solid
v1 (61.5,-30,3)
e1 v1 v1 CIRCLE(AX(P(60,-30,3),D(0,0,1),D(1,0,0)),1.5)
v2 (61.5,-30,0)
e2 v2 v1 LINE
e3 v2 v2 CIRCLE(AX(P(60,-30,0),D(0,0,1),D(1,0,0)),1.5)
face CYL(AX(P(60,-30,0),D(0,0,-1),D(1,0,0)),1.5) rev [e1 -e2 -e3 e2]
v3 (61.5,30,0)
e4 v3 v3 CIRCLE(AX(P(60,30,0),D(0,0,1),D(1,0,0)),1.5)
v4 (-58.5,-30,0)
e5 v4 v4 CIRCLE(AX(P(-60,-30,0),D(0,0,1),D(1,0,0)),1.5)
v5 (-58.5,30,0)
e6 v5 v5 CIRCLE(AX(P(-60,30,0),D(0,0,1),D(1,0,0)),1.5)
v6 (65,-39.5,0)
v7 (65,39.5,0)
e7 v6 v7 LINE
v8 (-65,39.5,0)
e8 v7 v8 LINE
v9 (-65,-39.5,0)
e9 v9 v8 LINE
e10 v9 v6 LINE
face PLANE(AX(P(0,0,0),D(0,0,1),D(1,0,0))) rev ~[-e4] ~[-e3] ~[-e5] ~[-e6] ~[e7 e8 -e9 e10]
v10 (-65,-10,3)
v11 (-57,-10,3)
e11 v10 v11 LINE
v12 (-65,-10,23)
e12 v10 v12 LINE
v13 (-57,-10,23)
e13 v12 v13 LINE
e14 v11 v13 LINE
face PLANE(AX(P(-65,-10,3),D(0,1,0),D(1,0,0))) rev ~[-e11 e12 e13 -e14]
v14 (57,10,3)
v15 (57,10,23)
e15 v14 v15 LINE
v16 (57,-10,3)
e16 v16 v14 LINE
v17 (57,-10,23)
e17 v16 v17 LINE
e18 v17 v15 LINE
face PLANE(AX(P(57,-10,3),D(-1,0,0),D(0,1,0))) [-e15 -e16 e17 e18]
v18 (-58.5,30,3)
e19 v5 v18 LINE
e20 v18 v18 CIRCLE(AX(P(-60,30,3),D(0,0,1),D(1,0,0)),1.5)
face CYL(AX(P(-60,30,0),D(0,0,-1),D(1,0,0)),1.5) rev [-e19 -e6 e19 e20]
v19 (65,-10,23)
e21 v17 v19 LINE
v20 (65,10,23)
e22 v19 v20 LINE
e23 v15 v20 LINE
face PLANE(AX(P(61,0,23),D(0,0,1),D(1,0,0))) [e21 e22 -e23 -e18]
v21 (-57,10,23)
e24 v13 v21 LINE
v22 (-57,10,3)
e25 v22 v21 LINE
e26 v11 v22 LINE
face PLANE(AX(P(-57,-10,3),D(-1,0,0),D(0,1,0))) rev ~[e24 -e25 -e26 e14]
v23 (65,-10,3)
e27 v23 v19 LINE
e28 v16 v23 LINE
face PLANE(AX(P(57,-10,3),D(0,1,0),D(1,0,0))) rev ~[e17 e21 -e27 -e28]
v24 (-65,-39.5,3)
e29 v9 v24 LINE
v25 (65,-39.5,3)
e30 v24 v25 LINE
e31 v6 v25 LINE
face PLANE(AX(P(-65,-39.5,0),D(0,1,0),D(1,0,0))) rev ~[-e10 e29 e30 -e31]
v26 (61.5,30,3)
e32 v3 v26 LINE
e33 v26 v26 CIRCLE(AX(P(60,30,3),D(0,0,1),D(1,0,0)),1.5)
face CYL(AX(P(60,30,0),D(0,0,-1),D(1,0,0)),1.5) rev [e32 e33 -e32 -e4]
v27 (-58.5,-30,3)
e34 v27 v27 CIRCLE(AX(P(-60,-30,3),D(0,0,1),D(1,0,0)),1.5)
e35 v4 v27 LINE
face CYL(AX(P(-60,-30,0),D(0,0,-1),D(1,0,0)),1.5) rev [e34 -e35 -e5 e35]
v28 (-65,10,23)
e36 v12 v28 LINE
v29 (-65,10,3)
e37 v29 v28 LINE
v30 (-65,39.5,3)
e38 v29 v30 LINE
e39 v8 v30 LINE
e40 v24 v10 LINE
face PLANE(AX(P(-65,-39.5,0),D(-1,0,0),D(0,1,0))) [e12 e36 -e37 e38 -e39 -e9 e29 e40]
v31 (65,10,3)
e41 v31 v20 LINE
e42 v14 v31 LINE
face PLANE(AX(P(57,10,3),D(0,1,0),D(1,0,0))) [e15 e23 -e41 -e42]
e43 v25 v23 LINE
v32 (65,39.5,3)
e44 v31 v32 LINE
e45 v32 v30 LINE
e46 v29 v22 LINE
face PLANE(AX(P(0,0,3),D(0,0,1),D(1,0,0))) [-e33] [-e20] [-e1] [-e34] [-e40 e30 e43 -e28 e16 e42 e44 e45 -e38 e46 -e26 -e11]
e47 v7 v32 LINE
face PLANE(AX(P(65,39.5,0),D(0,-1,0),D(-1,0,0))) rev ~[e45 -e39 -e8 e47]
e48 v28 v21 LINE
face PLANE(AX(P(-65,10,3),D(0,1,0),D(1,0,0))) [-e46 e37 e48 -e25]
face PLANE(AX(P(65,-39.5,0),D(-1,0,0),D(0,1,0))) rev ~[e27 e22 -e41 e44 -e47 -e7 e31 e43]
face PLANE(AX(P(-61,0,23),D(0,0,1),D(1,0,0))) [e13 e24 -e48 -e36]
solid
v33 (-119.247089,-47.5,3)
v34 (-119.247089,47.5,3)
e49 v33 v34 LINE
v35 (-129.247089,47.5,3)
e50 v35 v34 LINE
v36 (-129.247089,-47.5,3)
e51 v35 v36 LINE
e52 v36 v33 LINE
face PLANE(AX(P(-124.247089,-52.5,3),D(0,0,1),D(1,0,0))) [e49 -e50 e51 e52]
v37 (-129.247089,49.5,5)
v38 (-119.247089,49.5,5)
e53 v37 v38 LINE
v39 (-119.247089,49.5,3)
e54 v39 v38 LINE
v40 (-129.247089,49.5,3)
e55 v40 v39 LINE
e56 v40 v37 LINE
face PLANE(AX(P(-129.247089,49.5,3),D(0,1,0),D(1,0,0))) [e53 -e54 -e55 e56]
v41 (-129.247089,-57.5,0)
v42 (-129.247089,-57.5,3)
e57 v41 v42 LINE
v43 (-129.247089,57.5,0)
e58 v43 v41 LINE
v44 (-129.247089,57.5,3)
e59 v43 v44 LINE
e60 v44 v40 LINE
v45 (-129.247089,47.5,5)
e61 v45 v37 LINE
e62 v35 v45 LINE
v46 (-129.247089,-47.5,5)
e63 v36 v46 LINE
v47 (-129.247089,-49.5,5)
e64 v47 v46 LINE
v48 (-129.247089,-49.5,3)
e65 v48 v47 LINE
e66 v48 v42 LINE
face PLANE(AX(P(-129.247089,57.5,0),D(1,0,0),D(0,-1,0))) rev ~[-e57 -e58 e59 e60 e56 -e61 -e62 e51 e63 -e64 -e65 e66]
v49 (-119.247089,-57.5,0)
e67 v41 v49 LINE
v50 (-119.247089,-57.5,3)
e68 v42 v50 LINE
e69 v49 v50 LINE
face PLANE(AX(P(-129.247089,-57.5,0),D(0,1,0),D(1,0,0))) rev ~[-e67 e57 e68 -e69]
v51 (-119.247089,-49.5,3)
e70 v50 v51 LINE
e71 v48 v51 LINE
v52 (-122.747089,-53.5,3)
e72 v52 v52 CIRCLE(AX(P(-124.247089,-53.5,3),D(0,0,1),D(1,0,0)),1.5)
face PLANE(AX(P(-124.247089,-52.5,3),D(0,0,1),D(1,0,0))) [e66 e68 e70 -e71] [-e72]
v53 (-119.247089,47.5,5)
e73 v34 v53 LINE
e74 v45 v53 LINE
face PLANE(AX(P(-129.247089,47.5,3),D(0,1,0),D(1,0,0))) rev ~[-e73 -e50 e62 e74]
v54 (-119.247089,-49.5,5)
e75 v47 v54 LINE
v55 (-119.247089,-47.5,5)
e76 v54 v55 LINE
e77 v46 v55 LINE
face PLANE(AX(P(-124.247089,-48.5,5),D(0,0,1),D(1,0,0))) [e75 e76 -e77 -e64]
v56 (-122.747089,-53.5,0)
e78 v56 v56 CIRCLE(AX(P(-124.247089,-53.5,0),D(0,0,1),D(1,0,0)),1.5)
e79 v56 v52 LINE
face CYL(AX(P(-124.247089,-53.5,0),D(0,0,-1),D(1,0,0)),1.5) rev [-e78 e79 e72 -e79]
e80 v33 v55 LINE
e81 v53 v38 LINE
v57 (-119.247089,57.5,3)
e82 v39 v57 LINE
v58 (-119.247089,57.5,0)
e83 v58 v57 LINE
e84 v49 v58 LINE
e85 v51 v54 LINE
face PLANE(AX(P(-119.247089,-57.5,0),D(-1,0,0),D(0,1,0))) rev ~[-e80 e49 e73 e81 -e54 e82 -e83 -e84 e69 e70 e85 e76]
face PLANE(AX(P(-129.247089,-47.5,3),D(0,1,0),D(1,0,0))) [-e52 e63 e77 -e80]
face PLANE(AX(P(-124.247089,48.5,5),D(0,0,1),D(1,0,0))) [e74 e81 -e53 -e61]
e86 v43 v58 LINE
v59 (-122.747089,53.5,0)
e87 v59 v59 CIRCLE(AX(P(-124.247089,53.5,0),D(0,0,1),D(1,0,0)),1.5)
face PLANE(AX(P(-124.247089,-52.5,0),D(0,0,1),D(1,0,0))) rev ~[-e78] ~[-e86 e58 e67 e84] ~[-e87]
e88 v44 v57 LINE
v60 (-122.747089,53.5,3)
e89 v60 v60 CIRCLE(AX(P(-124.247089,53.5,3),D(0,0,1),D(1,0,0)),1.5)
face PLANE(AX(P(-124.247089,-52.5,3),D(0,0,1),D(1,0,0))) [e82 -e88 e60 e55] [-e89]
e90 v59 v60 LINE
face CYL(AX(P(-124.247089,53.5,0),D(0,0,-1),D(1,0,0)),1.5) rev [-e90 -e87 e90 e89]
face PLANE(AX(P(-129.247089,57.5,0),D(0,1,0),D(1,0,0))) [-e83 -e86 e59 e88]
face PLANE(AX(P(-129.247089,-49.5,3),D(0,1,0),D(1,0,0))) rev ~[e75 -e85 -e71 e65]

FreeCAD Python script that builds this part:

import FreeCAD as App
import Part
import Sketcher


def add_polygon(sketch, points):
    """Adds a closed chain of lines whose ends are joined by coincident constraints."""
    first, n = sketch.GeometryCount, len(points)
    for a, b in zip(points, points[1:] + points[:1]):
        sketch.addGeometry(Part.LineSegment(App.Vector(*a, 0), App.Vector(*b, 0)), False)
    for i in range(n):
        sketch.addConstraint(Sketcher.Constraint("Coincident", first + i, 2, first + (i + 1) % n, 1))

doc = App.newDocument("Part")
params = doc.addObject("Spreadsheet::Sheet", "Params")
for row, (alias, value) in enumerate([
    ("sketch1_diameter", "3 mm"),
    ("sketch1_width", "130 mm"),
    ("sketch1_height", "79 mm"),
    ("pad1_length", "3 mm"),
    ("sketch2_width", "8 mm"),
    ("sketch2_height", "20 mm"),
    ("pad2_length", "20 mm"),
    ("sketch3_diameter", "3 mm"),
    ("sketch3_width", "10 mm"),
    ("sketch3_height", "115 mm"),
    ("pad3_length", "3 mm"),
    ("sketch4_width", "10 mm"),
    ("sketch4_height", "2 mm"),
    ("pad4_length", "2 mm"),
], start=1):
    params.set(f"A{row}", alias)
    params.set(f"B{row}", "=" + value)
    params.setAlias(f"B{row}", alias)

body = doc.addObject("PartDesign::Body", "Body")

# Sketch on XY plane
sketch1 = body.newObject("Sketcher::SketchObject", "Sketch")
sketch1.AttachmentSupport = (doc.getObject("XY_Plane"), [""])
sketch1.MapMode = "FlatFace"
add_polygon(sketch1, [(65, -39.5), (65, 39.5), (-65, 39.5), (-65, -39.5)])  # lines 0-3
sketch1.addGeometry(Part.Circle(App.Vector(-60, -30, 0), App.Vector(0, 0, 1), 1.5), False)  # 4
sketch1.addGeometry(Part.Circle(App.Vector(60, -30, 0), App.Vector(0, 0, 1), 1.5), False)  # 5
sketch1.addGeometry(Part.Circle(App.Vector(-60, 30, 0), App.Vector(0, 0, 1), 1.5), False)  # 6
sketch1.addGeometry(Part.Circle(App.Vector(60, 30, 0), App.Vector(0, 0, 1), 1.5), False)  # 7
sketch1.addConstraint([
    Sketcher.Constraint("Vertical", 0),
    Sketcher.Constraint("Horizontal", 1),
    Sketcher.Constraint("Vertical", 2),
    Sketcher.Constraint("Horizontal", 3),
    Sketcher.Constraint("Equal", 4, 5),
    Sketcher.Constraint("Equal", 5, 6),
    Sketcher.Constraint("Equal", 6, 7),
    Sketcher.Constraint("Symmetric", 5, 3, 6, 3, -1, 1),
    Sketcher.Constraint("Symmetric", 4, 3, 7, 3, -1, 1),
    Sketcher.Constraint("Symmetric", 0, 2, 2, 2, -1, 1),
    Sketcher.Constraint("Symmetric", 4, 3, 5, 3, -2),
    Sketcher.Constraint("Diameter", 4, 3.0),
    Sketcher.Constraint("DistanceX", 1, 2, 1, 1, 130.0),
    Sketcher.Constraint("DistanceY", 0, 1, 0, 2, 79.0),
    Sketcher.Constraint("DistanceX", 4, 3, -1, 1, 60.0),
    Sketcher.Constraint("DistanceY", 4, 3, -1, 1, 30.0),
])
sketch1.setExpression("Constraints[15]", "Params.sketch1_diameter")
sketch1.setExpression("Constraints[16]", "Params.sketch1_width")
sketch1.setExpression("Constraints[17]", "Params.sketch1_height")
pad1 = body.newObject("PartDesign::Pad", "Pad")
pad1.Profile = sketch1
pad1.setExpression("Length", "Params.pad1_length")

# Sketch on XY plane
sketch2 = body.newObject("Sketcher::SketchObject", "Sketch001")
sketch2.AttachmentSupport = (doc.getObject("XY_Plane"), [""])
sketch2.MapMode = "FlatFace"
sketch2.AttachmentOffset = App.Placement(App.Vector(0, 0, 3), App.Rotation())
add_polygon(sketch2, [(-65, 10), (-65, -10), (-57, -10), (-57, 10)])  # lines 0-3
add_polygon(sketch2, [(57, 10), (57, -10), (65, -10), (65, 10)])  # lines 4-7
sketch2.addConstraint([
    Sketcher.Constraint("Vertical", 0),
    Sketcher.Constraint("Horizontal", 1),
    Sketcher.Constraint("Vertical", 2),
    Sketcher.Constraint("Horizontal", 3),
    Sketcher.Constraint("Vertical", 4),
    Sketcher.Constraint("Horizontal", 5),
    Sketcher.Constraint("Vertical", 6),
    Sketcher.Constraint("Horizontal", 7),
    Sketcher.Constraint("Symmetric", 2, 2, 4, 2, -1, 1),
    Sketcher.Constraint("Symmetric", 0, 2, 6, 2, -1, 1),
    Sketcher.Constraint("Horizontal", 1, 2, 4, 2),
    Sketcher.Constraint("DistanceX", 1, 1, 1, 2, 8.0),
    Sketcher.Constraint("DistanceY", 0, 2, 0, 1, 20.0),
    Sketcher.Constraint("DistanceX", 0, 2, -1, 1, 65.0),
])
sketch2.setExpression("Constraints[19]", "Params.sketch2_width")
sketch2.setExpression("Constraints[20]", "Params.sketch2_height")
pad2 = body.newObject("PartDesign::Pad", "Pad001")
pad2.Profile = sketch2
pad2.setExpression("Length", "Params.pad2_length")
body2 = doc.addObject("PartDesign::Body", "Body001")

# Sketch on XY plane
sketch3 = body2.newObject("Sketcher::SketchObject", "Sketch002")
sketch3.AttachmentSupport = (doc.getObject("XY_Plane001"), [""])
sketch3.MapMode = "FlatFace"
add_polygon(sketch3, [(-129.2, -57.5), (-119.2, -57.5), (-119.2, 57.5), (-129.2, 57.5)])  # lines 0-3
sketch3.addGeometry(Part.Circle(App.Vector(-124.2, -53.5, 0), App.Vector(0, 0, 1), 1.5), False)  # 4
sketch3.addGeometry(Part.Circle(App.Vector(-124.2, 53.5, 0), App.Vector(0, 0, 1), 1.5), False)  # 5
sketch3.addConstraint([
    Sketcher.Constraint("Horizontal", 0),
    Sketcher.Constraint("Vertical", 1),
    Sketcher.Constraint("Horizontal", 2),
    Sketcher.Constraint("Vertical", 3),
    Sketcher.Constraint("Equal", 4, 5),
    Sketcher.Constraint("Symmetric", 4, 3, 5, 3, -1),
    Sketcher.Constraint("Diameter", 4, 3.0),
    Sketcher.Constraint("DistanceX", 0, 1, 0, 2, 10.0),
    Sketcher.Constraint("DistanceY", 1, 1, 1, 2, 115.0),
    Sketcher.Constraint("DistanceY", 4, 3, 5, 3, 107.0),
    Sketcher.Constraint("DistanceX", 4, 3, 0, 2, 5.0),
    Sketcher.Constraint("DistanceY", 0, 2, 4, 3, 4.0),
    Sketcher.Constraint("DistanceX", 4, 3, -1, 1, 124.247089),
])
sketch3.setExpression("Constraints[10]", "Params.sketch3_diameter")
sketch3.setExpression("Constraints[11]", "Params.sketch3_width")
sketch3.setExpression("Constraints[12]", "Params.sketch3_height")
pad3 = body2.newObject("PartDesign::Pad", "Pad002")
pad3.Profile = sketch3
pad3.setExpression("Length", "Params.pad3_length")

# Sketch on XY plane
sketch4 = body2.newObject("Sketcher::SketchObject", "Sketch003")
sketch4.AttachmentSupport = (doc.getObject("XY_Plane001"), [""])
sketch4.MapMode = "FlatFace"
sketch4.AttachmentOffset = App.Placement(App.Vector(0, 0, 3), App.Rotation())
add_polygon(sketch4, [(-129.2, 49.5), (-129.2, 47.5), (-119.2, 47.5), (-119.2, 49.5)])  # lines 0-3
add_polygon(sketch4, [(-129.2, -47.5), (-129.2, -49.5), (-119.2, -49.5), (-119.2, -47.5)])  # lines 4-7
sketch4.addConstraint([
    Sketcher.Constraint("Vertical", 0),
    Sketcher.Constraint("Horizontal", 1),
    Sketcher.Constraint("Vertical", 2),
    Sketcher.Constraint("Horizontal", 3),
    Sketcher.Constraint("Vertical", 4),
    Sketcher.Constraint("Horizontal", 5),
    Sketcher.Constraint("Vertical", 6),
    Sketcher.Constraint("Horizontal", 7),
    Sketcher.Constraint("Symmetric", 3, 2, 4, 2, -1),
    Sketcher.Constraint("Symmetric", 1, 2, 6, 2, -1),
    Sketcher.Constraint("DistanceX", 1, 1, 1, 2, 10.0),
    Sketcher.Constraint("DistanceY", 0, 2, 0, 1, 2.0),
    Sketcher.Constraint("DistanceY", 4, 2, 0, 2, 97.0),
    Sketcher.Constraint("DistanceX", 0, 2, -1, 1, 129.247089),
])
sketch4.setExpression("Constraints[18]", "Params.sketch4_width")
sketch4.setExpression("Constraints[19]", "Params.sketch4_height")
pad4 = body2.newObject("PartDesign::Pad", "Pad003")
pad4.Profile = sketch4
pad4.setExpression("Length", "Params.pad4_length")

doc.recompute()
